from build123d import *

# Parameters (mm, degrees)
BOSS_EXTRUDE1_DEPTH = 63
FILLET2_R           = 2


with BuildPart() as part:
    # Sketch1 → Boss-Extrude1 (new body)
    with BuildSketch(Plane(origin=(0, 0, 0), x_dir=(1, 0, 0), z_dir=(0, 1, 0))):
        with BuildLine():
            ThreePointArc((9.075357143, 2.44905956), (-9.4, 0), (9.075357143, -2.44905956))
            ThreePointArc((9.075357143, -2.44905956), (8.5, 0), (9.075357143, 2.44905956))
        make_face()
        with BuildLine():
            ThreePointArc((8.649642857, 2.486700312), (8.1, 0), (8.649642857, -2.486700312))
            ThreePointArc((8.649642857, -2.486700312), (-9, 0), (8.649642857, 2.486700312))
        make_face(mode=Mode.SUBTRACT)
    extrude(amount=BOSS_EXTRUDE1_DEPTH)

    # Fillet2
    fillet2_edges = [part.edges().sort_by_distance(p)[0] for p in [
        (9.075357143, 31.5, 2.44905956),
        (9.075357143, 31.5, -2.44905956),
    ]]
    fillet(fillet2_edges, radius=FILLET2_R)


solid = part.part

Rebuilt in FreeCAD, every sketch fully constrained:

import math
import FreeCAD as App
import Part
import Sketcher


def edges_at(feature, points):
    """Names of the edges that pass closest to the given points."""
    edges = feature.Shape.Edges
    near = lambda p: min(range(len(edges)), key=lambda i: edges[i].distToShape(Part.Vertex(*p))[0])
    return sorted({f"Edge{near(p) + 1}" for p in points})

doc = App.newDocument("Part")
params = doc.addObject("Spreadsheet::Sheet", "Params")
for row, (alias, value) in enumerate([
    ("sketch1_radius", "9 mm"),
    ("sketch1_radius2", "9.4 mm"),
    ("sketch1_radius3", "5.5 mm"),
    ("sketch1_radius4", "5.9 mm"),
    ("pad1_length", "63 mm"),
    ("fillet_radius", "2 mm"),
], start=1):
    params.set(f"A{row}", alias)
    params.set(f"B{row}", "=" + value)
    params.setAlias(f"B{row}", alias)

body = doc.addObject("PartDesign::Body", "Body")

sketch1 = body.newObject("Sketcher::SketchObject", "Sketch")
sketch1.AttachmentSupport = (doc.getObject("XZ_Plane"), [""])
sketch1.MapMode = "FlatFace"
sketch1.addGeometry(Part.ArcOfCircle(Part.Circle(App.Vector(0, 0, 0), App.Vector(0, 0, 1), 9.4), math.radians(15), math.radians(345)), False)
sketch1.addGeometry(Part.ArcOfCircle(Part.Circle(App.Vector(14, 0, 0), App.Vector(0, 0, 1), 5.5), math.radians(154), math.radians(206)), False)
sketch1.addGeometry(Part.ArcOfCircle(Part.Circle(App.Vector(0, 0, 0), App.Vector(0, 0, 1), 9), math.radians(16), math.radians(344)), False)
sketch1.addGeometry(Part.ArcOfCircle(Part.Circle(App.Vector(14, 0, 0), App.Vector(0, 0, 1), 5.9), math.radians(155), math.radians(205)), False)
sketch1.addConstraint(Sketcher.Constraint("Coincident", 0, 1, 1, 1))
sketch1.addConstraint(Sketcher.Constraint("Coincident", 1, 2, 0, 2))
sketch1.addConstraint(Sketcher.Constraint("Coincident", 2, 1, 3, 1))
sketch1.addConstraint(Sketcher.Constraint("Coincident", 3, 2, 2, 2))
sketch1.addConstraint(Sketcher.Constraint("Coincident", 0, 3, -1, 1))
sketch1.addConstraint(Sketcher.Constraint("Coincident", 2, 3, -1, 1))
sketch1.addConstraint(Sketcher.Constraint("Coincident", 3, 3, 1, 3))
sketch1.addConstraint(Sketcher.Constraint("PointOnObject", 1, 3, -1))
sketch1.addConstraint(Sketcher.Constraint("Radius", 2, 9.0))
sketch1.addConstraint(Sketcher.Constraint("Radius", 0, 9.4))
sketch1.addConstraint(Sketcher.Constraint("Radius", 1, 5.5))
sketch1.addConstraint(Sketcher.Constraint("Radius", 3, 5.9))
sketch1.addConstraint(Sketcher.Constraint("DistanceX", -1, 1, 1, 3, 14.0))
sketch1.setExpression("Constraints[8]", "Params.sketch1_radius")
sketch1.setExpression("Constraints[9]", "Params.sketch1_radius2")
sketch1.setExpression("Constraints[10]", "Params.sketch1_radius3")
sketch1.setExpression("Constraints[11]", "Params.sketch1_radius4")
pad1 = body.newObject("PartDesign::Pad", "Pad")
pad1.Profile = sketch1
pad1.setExpression("Length", "Params.pad1_length")
pad1.Reversed = True
doc.recompute()

fillet = body.newObject("PartDesign::Fillet", "Fillet")
fillet.Base = (pad1, edges_at(pad1, [(9.075, 31.5, 2.449), (9.075, 31.5, -2.449)]))
fillet.setExpression("Radius", "Params.fillet_radius")

doc.recompute()
